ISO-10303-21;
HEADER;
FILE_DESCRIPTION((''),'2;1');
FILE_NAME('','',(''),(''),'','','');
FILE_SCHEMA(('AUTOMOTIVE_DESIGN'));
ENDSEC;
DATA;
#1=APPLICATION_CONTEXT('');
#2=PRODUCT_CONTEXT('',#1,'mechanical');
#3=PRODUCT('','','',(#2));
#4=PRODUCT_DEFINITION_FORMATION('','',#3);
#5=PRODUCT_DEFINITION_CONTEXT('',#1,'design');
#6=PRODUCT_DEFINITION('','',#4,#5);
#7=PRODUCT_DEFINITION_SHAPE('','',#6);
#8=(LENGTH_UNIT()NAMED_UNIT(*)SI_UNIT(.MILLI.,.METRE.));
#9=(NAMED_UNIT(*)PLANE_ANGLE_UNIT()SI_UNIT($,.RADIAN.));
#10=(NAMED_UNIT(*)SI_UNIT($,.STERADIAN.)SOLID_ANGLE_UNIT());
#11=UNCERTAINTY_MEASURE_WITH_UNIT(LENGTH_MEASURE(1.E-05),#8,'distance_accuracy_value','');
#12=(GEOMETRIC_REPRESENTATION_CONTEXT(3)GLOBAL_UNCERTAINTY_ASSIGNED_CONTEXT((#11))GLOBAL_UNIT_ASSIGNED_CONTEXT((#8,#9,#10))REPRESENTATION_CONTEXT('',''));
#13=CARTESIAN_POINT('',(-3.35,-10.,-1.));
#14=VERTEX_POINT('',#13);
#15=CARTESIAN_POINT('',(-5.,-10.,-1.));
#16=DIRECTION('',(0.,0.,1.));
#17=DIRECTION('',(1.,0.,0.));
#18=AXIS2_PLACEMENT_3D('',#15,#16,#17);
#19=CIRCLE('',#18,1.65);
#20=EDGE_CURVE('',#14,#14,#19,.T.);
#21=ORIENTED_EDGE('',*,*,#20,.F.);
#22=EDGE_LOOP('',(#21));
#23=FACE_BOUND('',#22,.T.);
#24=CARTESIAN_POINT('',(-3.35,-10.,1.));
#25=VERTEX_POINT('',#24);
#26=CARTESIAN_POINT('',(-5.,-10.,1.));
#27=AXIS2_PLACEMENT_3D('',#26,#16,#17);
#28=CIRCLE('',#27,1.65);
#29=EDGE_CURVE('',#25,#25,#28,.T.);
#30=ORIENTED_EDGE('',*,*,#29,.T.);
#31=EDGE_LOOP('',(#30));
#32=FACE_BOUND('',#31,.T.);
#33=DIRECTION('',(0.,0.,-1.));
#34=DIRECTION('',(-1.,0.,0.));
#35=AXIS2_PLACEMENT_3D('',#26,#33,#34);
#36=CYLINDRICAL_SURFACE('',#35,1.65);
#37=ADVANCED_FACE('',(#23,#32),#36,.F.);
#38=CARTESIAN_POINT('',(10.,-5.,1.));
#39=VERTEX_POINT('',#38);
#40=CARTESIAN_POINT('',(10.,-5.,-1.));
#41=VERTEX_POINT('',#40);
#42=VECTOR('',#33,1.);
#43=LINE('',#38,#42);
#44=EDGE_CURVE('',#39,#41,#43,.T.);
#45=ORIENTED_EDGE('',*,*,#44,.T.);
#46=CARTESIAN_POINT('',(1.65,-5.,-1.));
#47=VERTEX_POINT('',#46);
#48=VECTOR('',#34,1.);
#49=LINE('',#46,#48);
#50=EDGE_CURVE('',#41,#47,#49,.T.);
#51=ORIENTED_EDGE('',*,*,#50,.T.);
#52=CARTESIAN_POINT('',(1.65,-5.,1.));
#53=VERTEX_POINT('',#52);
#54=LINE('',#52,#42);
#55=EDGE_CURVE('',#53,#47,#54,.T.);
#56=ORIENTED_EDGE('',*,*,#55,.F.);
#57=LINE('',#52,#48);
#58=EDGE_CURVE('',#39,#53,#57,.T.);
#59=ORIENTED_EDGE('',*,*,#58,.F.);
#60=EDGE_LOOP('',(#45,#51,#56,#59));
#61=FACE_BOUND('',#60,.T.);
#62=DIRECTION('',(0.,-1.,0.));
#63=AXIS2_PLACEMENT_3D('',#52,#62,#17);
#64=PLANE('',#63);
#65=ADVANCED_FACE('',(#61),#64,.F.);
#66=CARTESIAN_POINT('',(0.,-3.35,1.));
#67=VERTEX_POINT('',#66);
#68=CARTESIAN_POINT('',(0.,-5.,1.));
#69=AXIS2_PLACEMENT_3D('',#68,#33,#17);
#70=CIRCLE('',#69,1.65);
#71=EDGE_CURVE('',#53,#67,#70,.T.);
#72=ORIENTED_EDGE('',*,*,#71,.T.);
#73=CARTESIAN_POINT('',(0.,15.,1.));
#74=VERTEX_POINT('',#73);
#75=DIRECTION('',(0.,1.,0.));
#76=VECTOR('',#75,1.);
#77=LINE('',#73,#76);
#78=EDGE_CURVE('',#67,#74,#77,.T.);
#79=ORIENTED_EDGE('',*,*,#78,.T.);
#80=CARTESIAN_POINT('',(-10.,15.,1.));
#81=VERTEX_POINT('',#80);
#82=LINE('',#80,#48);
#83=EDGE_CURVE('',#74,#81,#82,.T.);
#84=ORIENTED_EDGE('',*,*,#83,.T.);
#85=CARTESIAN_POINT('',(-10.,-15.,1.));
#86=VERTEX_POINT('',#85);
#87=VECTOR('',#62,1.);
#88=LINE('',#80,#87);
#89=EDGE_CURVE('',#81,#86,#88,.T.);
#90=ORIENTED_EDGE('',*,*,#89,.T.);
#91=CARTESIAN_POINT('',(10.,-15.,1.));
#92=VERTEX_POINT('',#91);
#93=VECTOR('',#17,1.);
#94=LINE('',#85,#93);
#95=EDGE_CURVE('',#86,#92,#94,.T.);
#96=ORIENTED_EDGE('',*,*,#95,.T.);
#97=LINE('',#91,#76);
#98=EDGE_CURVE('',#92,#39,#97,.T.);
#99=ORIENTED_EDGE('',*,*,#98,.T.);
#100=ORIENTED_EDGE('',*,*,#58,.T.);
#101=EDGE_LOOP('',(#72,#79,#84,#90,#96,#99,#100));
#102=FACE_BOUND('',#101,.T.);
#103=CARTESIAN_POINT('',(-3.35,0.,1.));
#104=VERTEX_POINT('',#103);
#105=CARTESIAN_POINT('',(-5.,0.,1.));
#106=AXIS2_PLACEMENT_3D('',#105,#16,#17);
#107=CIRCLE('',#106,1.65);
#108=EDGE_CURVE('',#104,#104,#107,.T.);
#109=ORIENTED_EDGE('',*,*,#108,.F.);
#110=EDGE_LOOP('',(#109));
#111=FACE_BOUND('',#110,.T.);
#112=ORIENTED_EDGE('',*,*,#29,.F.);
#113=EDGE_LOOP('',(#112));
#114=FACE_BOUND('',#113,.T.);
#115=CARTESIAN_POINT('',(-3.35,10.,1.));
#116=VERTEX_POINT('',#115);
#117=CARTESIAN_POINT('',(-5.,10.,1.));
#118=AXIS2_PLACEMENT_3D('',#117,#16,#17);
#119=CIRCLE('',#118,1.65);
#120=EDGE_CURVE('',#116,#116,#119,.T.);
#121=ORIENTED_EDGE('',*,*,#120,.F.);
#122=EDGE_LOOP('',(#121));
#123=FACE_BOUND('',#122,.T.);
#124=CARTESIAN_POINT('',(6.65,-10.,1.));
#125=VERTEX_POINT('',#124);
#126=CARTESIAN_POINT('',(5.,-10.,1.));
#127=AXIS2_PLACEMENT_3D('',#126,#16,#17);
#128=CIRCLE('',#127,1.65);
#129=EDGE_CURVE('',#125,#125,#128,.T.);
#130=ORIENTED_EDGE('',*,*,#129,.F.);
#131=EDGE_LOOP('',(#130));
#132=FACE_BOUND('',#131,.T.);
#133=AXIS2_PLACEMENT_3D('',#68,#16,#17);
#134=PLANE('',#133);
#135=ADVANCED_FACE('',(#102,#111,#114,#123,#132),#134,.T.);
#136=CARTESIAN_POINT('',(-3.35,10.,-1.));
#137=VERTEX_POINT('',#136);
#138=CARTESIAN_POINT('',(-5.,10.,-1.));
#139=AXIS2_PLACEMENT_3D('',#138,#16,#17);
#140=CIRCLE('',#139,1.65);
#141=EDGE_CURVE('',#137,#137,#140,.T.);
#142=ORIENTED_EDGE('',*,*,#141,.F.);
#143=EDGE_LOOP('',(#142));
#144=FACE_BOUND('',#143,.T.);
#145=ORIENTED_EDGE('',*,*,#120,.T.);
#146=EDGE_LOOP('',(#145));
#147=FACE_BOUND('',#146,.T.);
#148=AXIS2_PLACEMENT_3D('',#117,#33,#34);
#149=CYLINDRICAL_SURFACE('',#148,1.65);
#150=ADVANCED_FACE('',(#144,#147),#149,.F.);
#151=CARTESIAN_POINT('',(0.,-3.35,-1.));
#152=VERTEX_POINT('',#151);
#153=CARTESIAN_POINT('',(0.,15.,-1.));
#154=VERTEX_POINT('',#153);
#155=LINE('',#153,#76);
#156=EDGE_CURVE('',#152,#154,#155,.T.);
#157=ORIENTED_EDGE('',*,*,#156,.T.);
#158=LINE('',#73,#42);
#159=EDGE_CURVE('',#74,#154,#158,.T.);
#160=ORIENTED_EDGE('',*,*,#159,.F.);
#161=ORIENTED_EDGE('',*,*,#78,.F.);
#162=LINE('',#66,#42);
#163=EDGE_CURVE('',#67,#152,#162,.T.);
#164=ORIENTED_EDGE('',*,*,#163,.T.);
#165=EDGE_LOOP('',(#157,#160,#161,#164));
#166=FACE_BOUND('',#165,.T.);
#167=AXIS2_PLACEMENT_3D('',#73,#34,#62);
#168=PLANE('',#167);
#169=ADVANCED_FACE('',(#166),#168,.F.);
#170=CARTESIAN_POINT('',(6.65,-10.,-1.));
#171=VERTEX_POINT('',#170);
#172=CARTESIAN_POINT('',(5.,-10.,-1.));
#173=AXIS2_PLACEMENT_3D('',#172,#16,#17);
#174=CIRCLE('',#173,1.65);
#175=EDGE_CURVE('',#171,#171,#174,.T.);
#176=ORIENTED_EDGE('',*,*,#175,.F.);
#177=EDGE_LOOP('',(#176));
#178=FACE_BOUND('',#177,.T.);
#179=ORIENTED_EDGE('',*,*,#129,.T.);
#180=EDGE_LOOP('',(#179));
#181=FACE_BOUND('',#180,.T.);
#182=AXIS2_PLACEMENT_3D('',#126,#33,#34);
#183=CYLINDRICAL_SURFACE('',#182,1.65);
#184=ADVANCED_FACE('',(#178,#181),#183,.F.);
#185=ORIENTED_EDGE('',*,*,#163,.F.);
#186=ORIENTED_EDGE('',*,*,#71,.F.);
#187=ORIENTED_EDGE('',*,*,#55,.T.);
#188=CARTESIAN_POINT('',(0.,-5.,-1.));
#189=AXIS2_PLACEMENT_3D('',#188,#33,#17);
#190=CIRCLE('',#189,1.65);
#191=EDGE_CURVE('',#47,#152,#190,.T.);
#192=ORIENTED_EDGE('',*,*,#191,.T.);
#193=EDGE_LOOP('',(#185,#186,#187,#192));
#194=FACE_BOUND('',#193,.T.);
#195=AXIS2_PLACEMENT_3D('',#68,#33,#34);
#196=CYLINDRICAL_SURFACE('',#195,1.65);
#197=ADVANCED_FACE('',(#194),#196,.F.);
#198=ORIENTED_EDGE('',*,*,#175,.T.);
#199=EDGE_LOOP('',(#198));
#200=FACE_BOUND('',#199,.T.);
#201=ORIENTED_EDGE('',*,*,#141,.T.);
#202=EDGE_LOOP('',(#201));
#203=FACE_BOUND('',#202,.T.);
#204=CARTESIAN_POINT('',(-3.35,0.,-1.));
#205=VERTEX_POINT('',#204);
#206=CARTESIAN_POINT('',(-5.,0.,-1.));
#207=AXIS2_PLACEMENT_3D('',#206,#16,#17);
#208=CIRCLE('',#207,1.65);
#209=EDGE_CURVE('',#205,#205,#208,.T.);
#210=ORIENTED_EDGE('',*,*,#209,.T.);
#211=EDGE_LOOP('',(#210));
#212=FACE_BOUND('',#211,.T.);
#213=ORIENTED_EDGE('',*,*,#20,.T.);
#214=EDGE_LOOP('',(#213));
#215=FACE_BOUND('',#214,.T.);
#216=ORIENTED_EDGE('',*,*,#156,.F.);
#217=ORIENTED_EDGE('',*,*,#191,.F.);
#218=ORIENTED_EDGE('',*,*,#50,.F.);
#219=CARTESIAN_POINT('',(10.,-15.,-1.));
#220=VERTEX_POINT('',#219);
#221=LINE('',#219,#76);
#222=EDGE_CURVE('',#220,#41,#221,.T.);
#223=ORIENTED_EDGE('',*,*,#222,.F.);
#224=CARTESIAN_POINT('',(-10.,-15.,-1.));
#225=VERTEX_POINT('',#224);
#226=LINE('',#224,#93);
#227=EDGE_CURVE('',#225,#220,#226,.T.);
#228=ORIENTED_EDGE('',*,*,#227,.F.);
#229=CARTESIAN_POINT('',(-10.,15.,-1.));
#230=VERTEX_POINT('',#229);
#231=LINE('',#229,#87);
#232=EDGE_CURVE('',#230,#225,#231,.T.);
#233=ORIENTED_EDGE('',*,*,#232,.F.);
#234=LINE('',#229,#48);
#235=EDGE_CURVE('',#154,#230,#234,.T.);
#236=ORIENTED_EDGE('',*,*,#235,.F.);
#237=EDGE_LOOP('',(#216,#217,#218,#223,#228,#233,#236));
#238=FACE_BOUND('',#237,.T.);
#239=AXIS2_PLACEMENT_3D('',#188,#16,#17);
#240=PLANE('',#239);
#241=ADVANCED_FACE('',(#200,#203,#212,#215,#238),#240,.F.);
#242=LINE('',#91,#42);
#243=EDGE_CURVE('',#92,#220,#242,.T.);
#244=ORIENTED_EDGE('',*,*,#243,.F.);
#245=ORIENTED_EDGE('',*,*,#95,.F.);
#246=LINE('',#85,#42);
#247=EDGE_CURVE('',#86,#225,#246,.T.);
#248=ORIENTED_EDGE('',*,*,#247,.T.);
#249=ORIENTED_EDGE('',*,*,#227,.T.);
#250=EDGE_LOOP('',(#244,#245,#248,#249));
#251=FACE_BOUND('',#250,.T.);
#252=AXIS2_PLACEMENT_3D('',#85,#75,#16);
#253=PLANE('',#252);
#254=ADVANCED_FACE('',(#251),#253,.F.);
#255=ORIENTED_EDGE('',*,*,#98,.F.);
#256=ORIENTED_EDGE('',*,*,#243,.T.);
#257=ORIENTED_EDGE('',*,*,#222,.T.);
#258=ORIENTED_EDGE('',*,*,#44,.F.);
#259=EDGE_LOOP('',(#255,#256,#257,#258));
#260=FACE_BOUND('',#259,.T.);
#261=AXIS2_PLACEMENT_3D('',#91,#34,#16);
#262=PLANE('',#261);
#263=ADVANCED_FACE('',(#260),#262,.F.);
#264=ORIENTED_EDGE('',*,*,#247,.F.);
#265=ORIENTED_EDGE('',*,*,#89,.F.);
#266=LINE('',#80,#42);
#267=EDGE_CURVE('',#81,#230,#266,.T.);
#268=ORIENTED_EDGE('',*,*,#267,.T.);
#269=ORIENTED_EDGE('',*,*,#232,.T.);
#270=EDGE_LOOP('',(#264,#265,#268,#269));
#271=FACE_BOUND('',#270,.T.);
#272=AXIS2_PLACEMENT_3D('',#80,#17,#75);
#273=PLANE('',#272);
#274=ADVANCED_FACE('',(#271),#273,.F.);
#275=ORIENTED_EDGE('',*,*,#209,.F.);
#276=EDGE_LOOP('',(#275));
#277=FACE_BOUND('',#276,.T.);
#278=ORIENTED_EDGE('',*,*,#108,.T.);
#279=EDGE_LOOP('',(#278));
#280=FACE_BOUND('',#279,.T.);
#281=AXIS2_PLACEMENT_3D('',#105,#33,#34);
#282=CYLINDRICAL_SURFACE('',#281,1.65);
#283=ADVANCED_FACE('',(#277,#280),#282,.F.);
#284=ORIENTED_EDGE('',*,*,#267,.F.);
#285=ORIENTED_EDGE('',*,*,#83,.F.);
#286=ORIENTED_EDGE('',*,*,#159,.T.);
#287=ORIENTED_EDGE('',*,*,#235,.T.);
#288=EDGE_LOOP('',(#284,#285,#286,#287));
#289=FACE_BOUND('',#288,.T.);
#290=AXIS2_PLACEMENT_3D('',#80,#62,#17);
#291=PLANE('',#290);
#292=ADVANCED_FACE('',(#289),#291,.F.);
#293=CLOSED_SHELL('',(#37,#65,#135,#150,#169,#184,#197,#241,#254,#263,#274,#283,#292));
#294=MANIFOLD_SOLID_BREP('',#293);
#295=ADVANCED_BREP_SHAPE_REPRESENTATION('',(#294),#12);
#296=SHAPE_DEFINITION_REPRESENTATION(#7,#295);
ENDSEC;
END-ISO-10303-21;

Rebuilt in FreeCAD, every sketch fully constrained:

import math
import FreeCAD as App
import Part
import Sketcher
Q = App.Units.Quantity

doc = App.newDocument("Part")
body = doc.addObject("PartDesign::Body", "Body")

sketch1 = body.newObject("Sketcher::SketchObject", "Sketch")
sketch1.AttachmentSupport = (doc.getObject("XY_Plane"), [""])
sketch1.MapMode = "FlatFace"
sketch1.addGeometry([
    Part.LineSegment(App.Vector(-10, 15, 0), App.Vector(-10, -15, 0)),
    Part.LineSegment(App.Vector(-10, -15, 0), App.Vector(10, -15, 0)),
    Part.LineSegment(App.Vector(10, -15, 0), App.Vector(10, -5, 0)),
    Part.LineSegment(App.Vector(10, -5, 0), App.Vector(1.6, -5, 0)),
    Part.ArcOfCircle(Part.Circle(App.Vector(0, -5, 0), App.Vector(0, 0, 1), 1.6), math.radians(90), math.radians(360)),
    Part.LineSegment(App.Vector(0, -3.4, 0), App.Vector(0, 15, 0)),
    Part.LineSegment(App.Vector(0, 15, 0), App.Vector(-10, 15, 0)),
    Part.Circle(App.Vector(-5, -10, 0), App.Vector(0, 0, 1), 1.6),
    Part.Circle(App.Vector(5, -10, 0), App.Vector(0, 0, 1), 1.6),
    Part.Circle(App.Vector(-5, 0, 0), App.Vector(0, 0, 1), 1.6),
    Part.Circle(App.Vector(-5, 10, 0), App.Vector(0, 0, 1), 1.6),
], False)
sketch1.addConstraint([
    Sketcher.Constraint("Coincident", 0, 2, 1, 1),
    Sketcher.Constraint("Coincident", 1, 2, 2, 1),
    Sketcher.Constraint("Coincident", 2, 2, 3, 1),
    Sketcher.Constraint("Coincident", 3, 2, 4, 2),
    Sketcher.Constraint("Coincident", 4, 1, 5, 1),
    Sketcher.Constraint("Coincident", 5, 2, 6, 1),
    Sketcher.Constraint("Coincident", 6, 2, 0, 1),
    Sketcher.Constraint("Vertical", 0),
    Sketcher.Constraint("Horizontal", 1),
    Sketcher.Constraint("Vertical", 2),
    Sketcher.Constraint("Horizontal", 3),
    Sketcher.Constraint("Vertical", 5),
    Sketcher.Constraint("Horizontal", 6),
    Sketcher.Constraint("Equal", 4, 7),
    Sketcher.Constraint("Equal", 7, 8),
    Sketcher.Constraint("Equal", 8, 9),
    Sketcher.Constraint("Equal", 9, 10),
    Sketcher.Constraint("Symmetric", 8, 3, 10, 3, -1, 1),
    Sketcher.Constraint("Symmetric", 1, 2, 6, 2, -1, 1),
    Sketcher.Constraint("Symmetric", 7, 3, 8, 3, -2),
    Sketcher.Constraint("PointOnObject", 4, 3, -2),
    Sketcher.Constraint("PointOnObject", 9, 3, -1),
    Sketcher.Constraint("PointOnObject", 4, 1, -2),
    Sketcher.Constraint("Horizontal", 4, 3, 2, 2),
    Sketcher.Constraint("Vertical", 7, 3, 9, 3),
    Sketcher.Constraint("Equal", 6, 2),
    Sketcher.Constraint("Diameter", 7, Q("3.3 mm")),
    Sketcher.Constraint("DistanceX", 1, 1, 1, 2, Q("20 mm")),
    Sketcher.Constraint("DistanceY", 0, 2, 0, 1, Q("30 mm")),
    Sketcher.Constraint("DistanceX", 7, 3, -1, 1, Q("5 mm")),
    Sketcher.Constraint("DistanceY", 7, 3, -1, 1, Q("10 mm")),
])
pad1 = body.newObject("PartDesign::Pad", "Pad")
pad1.Profile = sketch1
pad1.Length = 2
pad1.Midplane = True

doc.recompute()
